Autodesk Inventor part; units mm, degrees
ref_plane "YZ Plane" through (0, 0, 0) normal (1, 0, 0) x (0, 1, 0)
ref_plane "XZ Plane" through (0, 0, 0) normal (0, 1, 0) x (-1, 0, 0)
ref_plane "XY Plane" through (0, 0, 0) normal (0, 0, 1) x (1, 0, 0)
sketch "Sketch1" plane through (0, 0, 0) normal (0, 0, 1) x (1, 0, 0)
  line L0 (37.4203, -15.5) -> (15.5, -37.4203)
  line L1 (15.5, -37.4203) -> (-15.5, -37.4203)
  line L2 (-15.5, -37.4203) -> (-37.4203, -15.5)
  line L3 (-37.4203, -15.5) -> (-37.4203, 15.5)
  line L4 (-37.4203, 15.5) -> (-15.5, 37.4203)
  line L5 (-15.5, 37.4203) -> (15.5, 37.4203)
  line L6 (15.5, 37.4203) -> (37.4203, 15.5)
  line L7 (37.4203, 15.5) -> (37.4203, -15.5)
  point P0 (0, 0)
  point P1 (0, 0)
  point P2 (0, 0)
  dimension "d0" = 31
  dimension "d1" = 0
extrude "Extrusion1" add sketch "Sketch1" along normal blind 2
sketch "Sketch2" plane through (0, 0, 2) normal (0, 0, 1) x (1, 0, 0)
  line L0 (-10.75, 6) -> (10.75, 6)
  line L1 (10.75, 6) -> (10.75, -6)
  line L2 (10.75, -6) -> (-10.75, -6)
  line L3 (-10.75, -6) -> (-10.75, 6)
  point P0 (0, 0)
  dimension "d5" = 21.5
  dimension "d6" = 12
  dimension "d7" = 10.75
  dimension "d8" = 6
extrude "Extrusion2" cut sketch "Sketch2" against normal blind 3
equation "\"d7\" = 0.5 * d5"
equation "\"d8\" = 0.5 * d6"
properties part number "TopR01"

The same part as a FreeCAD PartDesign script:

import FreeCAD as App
import Part
import Sketcher

doc = App.newDocument("Part")
params = doc.addObject("Spreadsheet::Sheet", "Params")
for row, (alias, value) in enumerate([
    ("sketch1_width", "31 mm"),
    ("sketch1_length", "31 mm"),
    ("pad1_length", "2 mm"),
    ("sketch2_height", "12 mm"),
    ("sketch2_width", "21.5 mm"),
    ("pocket1_length", "3 mm"),
], start=1):
    params.set(f"A{row}", alias)
    params.set(f"B{row}", "=" + value)
    params.setAlias(f"B{row}", alias)

body = doc.addObject("PartDesign::Body", "Body")

# Sketch on XY plane
sketch1 = body.newObject("Sketcher::SketchObject", "Sketch")
sketch1.AttachmentSupport = (doc.getObject("XY_Plane"), [""])
sketch1.MapMode = "FlatFace"
sketch1.addGeometry([
    Part.LineSegment(App.Vector(16, -37, 0), App.Vector(37, -16, 0)),  # 0
    Part.LineSegment(App.Vector(37, -16, 0), App.Vector(37, 16, 0)),  # 1
    Part.LineSegment(App.Vector(37, 16, 0), App.Vector(16, 37, 0)),  # 2
    Part.LineSegment(App.Vector(16, 37, 0), App.Vector(-16, 37, 0)),  # 3
    Part.LineSegment(App.Vector(-16, 37, 0), App.Vector(-37, 16, 0)),  # 4
    Part.LineSegment(App.Vector(-37, 16, 0), App.Vector(-37, -16, 0)),  # 5
    Part.LineSegment(App.Vector(-37, -16, 0), App.Vector(-16, -37, 0)),  # 6
    Part.LineSegment(App.Vector(-16, -37, 0), App.Vector(16, -37, 0)),  # 7
], False)
sketch1.addConstraint([
    Sketcher.Constraint("Coincident", 0, 2, 1, 1),
    Sketcher.Constraint("Coincident", 1, 2, 2, 1),
    Sketcher.Constraint("Coincident", 2, 2, 3, 1),
    Sketcher.Constraint("Coincident", 3, 2, 4, 1),
    Sketcher.Constraint("Coincident", 4, 2, 5, 1),
    Sketcher.Constraint("Coincident", 5, 2, 6, 1),
    Sketcher.Constraint("Coincident", 6, 2, 7, 1),
    Sketcher.Constraint("Coincident", 7, 2, 0, 1),
    Sketcher.Constraint("Vertical", 1),
    Sketcher.Constraint("Horizontal", 3),
    Sketcher.Constraint("Vertical", 5),
    Sketcher.Constraint("Horizontal", 7),
    Sketcher.Constraint("Symmetric", 0, 2, 4, 2, -1, 1),
    Sketcher.Constraint("Symmetric", 2, 2, 6, 2, -1, 1),
    Sketcher.Constraint("Perpendicular", 0, 2),
    Sketcher.Constraint("Perpendicular", 2, 4),
    Sketcher.Constraint("Perpendicular", 4, 6),
    Sketcher.Constraint("Horizontal", 1, 2, 4, 2),
    Sketcher.Constraint("Vertical", 3, 2, 6, 2),
    Sketcher.Constraint("Equal", 7, 1),
    Sketcher.Constraint("DistanceX", 3, 2, 3, 1, 31.0),
    Sketcher.Constraint("Distance", 0, 31.0),
])
sketch1.setExpression("Constraints[20]", "Params.sketch1_width")
sketch1.setExpression("Constraints[21]", "Params.sketch1_length")
pad1 = body.newObject("PartDesign::Pad", "Pad")
pad1.Profile = sketch1
pad1.setExpression("Length", "Params.pad1_length")

# Sketch on XY plane
sketch2 = body.newObject("Sketcher::SketchObject", "Sketch001")
sketch2.AttachmentSupport = (doc.getObject("XY_Plane"), [""])
sketch2.MapMode = "FlatFace"
sketch2.AttachmentOffset = App.Placement(App.Vector(0, 0, 2), App.Rotation())
sketch2.addGeometry([
    Part.LineSegment(App.Vector(11, 6, 0), App.Vector(-11, 6, 0)),
    Part.LineSegment(App.Vector(-11, 6, 0), App.Vector(-11, -6, 0)),
    Part.LineSegment(App.Vector(-11, -6, 0), App.Vector(11, -6, 0)),
    Part.LineSegment(App.Vector(11, -6, 0), App.Vector(11, 6, 0)),
], False)
sketch2.addConstraint([
    Sketcher.Constraint("Coincident", 0, 2, 1, 1),
    Sketcher.Constraint("Coincident", 1, 2, 2, 1),
    Sketcher.Constraint("Coincident", 2, 2, 3, 1),
    Sketcher.Constraint("Coincident", 3, 2, 0, 1),
    Sketcher.Constraint("Horizontal", 0),
    Sketcher.Constraint("Vertical", 1),
    Sketcher.Constraint("Horizontal", 2),
    Sketcher.Constraint("Vertical", 3),
    Sketcher.Constraint("Symmetric", 0, 2, 2, 2, -1, 1),
    Sketcher.Constraint("DistanceY", 1, 2, 1, 1, 12.0),
    Sketcher.Constraint("DistanceX", 0, 2, 0, 1, 21.5),
])
sketch2.setExpression("Constraints[9]", "Params.sketch2_height")
sketch2.setExpression("Constraints[10]", "Params.sketch2_width")
pocket1 = body.newObject("PartDesign::Pocket", "Pocket")
pocket1.Profile = sketch2
pocket1.setExpression("Length", "Params.pocket1_length")

doc.recompute()
